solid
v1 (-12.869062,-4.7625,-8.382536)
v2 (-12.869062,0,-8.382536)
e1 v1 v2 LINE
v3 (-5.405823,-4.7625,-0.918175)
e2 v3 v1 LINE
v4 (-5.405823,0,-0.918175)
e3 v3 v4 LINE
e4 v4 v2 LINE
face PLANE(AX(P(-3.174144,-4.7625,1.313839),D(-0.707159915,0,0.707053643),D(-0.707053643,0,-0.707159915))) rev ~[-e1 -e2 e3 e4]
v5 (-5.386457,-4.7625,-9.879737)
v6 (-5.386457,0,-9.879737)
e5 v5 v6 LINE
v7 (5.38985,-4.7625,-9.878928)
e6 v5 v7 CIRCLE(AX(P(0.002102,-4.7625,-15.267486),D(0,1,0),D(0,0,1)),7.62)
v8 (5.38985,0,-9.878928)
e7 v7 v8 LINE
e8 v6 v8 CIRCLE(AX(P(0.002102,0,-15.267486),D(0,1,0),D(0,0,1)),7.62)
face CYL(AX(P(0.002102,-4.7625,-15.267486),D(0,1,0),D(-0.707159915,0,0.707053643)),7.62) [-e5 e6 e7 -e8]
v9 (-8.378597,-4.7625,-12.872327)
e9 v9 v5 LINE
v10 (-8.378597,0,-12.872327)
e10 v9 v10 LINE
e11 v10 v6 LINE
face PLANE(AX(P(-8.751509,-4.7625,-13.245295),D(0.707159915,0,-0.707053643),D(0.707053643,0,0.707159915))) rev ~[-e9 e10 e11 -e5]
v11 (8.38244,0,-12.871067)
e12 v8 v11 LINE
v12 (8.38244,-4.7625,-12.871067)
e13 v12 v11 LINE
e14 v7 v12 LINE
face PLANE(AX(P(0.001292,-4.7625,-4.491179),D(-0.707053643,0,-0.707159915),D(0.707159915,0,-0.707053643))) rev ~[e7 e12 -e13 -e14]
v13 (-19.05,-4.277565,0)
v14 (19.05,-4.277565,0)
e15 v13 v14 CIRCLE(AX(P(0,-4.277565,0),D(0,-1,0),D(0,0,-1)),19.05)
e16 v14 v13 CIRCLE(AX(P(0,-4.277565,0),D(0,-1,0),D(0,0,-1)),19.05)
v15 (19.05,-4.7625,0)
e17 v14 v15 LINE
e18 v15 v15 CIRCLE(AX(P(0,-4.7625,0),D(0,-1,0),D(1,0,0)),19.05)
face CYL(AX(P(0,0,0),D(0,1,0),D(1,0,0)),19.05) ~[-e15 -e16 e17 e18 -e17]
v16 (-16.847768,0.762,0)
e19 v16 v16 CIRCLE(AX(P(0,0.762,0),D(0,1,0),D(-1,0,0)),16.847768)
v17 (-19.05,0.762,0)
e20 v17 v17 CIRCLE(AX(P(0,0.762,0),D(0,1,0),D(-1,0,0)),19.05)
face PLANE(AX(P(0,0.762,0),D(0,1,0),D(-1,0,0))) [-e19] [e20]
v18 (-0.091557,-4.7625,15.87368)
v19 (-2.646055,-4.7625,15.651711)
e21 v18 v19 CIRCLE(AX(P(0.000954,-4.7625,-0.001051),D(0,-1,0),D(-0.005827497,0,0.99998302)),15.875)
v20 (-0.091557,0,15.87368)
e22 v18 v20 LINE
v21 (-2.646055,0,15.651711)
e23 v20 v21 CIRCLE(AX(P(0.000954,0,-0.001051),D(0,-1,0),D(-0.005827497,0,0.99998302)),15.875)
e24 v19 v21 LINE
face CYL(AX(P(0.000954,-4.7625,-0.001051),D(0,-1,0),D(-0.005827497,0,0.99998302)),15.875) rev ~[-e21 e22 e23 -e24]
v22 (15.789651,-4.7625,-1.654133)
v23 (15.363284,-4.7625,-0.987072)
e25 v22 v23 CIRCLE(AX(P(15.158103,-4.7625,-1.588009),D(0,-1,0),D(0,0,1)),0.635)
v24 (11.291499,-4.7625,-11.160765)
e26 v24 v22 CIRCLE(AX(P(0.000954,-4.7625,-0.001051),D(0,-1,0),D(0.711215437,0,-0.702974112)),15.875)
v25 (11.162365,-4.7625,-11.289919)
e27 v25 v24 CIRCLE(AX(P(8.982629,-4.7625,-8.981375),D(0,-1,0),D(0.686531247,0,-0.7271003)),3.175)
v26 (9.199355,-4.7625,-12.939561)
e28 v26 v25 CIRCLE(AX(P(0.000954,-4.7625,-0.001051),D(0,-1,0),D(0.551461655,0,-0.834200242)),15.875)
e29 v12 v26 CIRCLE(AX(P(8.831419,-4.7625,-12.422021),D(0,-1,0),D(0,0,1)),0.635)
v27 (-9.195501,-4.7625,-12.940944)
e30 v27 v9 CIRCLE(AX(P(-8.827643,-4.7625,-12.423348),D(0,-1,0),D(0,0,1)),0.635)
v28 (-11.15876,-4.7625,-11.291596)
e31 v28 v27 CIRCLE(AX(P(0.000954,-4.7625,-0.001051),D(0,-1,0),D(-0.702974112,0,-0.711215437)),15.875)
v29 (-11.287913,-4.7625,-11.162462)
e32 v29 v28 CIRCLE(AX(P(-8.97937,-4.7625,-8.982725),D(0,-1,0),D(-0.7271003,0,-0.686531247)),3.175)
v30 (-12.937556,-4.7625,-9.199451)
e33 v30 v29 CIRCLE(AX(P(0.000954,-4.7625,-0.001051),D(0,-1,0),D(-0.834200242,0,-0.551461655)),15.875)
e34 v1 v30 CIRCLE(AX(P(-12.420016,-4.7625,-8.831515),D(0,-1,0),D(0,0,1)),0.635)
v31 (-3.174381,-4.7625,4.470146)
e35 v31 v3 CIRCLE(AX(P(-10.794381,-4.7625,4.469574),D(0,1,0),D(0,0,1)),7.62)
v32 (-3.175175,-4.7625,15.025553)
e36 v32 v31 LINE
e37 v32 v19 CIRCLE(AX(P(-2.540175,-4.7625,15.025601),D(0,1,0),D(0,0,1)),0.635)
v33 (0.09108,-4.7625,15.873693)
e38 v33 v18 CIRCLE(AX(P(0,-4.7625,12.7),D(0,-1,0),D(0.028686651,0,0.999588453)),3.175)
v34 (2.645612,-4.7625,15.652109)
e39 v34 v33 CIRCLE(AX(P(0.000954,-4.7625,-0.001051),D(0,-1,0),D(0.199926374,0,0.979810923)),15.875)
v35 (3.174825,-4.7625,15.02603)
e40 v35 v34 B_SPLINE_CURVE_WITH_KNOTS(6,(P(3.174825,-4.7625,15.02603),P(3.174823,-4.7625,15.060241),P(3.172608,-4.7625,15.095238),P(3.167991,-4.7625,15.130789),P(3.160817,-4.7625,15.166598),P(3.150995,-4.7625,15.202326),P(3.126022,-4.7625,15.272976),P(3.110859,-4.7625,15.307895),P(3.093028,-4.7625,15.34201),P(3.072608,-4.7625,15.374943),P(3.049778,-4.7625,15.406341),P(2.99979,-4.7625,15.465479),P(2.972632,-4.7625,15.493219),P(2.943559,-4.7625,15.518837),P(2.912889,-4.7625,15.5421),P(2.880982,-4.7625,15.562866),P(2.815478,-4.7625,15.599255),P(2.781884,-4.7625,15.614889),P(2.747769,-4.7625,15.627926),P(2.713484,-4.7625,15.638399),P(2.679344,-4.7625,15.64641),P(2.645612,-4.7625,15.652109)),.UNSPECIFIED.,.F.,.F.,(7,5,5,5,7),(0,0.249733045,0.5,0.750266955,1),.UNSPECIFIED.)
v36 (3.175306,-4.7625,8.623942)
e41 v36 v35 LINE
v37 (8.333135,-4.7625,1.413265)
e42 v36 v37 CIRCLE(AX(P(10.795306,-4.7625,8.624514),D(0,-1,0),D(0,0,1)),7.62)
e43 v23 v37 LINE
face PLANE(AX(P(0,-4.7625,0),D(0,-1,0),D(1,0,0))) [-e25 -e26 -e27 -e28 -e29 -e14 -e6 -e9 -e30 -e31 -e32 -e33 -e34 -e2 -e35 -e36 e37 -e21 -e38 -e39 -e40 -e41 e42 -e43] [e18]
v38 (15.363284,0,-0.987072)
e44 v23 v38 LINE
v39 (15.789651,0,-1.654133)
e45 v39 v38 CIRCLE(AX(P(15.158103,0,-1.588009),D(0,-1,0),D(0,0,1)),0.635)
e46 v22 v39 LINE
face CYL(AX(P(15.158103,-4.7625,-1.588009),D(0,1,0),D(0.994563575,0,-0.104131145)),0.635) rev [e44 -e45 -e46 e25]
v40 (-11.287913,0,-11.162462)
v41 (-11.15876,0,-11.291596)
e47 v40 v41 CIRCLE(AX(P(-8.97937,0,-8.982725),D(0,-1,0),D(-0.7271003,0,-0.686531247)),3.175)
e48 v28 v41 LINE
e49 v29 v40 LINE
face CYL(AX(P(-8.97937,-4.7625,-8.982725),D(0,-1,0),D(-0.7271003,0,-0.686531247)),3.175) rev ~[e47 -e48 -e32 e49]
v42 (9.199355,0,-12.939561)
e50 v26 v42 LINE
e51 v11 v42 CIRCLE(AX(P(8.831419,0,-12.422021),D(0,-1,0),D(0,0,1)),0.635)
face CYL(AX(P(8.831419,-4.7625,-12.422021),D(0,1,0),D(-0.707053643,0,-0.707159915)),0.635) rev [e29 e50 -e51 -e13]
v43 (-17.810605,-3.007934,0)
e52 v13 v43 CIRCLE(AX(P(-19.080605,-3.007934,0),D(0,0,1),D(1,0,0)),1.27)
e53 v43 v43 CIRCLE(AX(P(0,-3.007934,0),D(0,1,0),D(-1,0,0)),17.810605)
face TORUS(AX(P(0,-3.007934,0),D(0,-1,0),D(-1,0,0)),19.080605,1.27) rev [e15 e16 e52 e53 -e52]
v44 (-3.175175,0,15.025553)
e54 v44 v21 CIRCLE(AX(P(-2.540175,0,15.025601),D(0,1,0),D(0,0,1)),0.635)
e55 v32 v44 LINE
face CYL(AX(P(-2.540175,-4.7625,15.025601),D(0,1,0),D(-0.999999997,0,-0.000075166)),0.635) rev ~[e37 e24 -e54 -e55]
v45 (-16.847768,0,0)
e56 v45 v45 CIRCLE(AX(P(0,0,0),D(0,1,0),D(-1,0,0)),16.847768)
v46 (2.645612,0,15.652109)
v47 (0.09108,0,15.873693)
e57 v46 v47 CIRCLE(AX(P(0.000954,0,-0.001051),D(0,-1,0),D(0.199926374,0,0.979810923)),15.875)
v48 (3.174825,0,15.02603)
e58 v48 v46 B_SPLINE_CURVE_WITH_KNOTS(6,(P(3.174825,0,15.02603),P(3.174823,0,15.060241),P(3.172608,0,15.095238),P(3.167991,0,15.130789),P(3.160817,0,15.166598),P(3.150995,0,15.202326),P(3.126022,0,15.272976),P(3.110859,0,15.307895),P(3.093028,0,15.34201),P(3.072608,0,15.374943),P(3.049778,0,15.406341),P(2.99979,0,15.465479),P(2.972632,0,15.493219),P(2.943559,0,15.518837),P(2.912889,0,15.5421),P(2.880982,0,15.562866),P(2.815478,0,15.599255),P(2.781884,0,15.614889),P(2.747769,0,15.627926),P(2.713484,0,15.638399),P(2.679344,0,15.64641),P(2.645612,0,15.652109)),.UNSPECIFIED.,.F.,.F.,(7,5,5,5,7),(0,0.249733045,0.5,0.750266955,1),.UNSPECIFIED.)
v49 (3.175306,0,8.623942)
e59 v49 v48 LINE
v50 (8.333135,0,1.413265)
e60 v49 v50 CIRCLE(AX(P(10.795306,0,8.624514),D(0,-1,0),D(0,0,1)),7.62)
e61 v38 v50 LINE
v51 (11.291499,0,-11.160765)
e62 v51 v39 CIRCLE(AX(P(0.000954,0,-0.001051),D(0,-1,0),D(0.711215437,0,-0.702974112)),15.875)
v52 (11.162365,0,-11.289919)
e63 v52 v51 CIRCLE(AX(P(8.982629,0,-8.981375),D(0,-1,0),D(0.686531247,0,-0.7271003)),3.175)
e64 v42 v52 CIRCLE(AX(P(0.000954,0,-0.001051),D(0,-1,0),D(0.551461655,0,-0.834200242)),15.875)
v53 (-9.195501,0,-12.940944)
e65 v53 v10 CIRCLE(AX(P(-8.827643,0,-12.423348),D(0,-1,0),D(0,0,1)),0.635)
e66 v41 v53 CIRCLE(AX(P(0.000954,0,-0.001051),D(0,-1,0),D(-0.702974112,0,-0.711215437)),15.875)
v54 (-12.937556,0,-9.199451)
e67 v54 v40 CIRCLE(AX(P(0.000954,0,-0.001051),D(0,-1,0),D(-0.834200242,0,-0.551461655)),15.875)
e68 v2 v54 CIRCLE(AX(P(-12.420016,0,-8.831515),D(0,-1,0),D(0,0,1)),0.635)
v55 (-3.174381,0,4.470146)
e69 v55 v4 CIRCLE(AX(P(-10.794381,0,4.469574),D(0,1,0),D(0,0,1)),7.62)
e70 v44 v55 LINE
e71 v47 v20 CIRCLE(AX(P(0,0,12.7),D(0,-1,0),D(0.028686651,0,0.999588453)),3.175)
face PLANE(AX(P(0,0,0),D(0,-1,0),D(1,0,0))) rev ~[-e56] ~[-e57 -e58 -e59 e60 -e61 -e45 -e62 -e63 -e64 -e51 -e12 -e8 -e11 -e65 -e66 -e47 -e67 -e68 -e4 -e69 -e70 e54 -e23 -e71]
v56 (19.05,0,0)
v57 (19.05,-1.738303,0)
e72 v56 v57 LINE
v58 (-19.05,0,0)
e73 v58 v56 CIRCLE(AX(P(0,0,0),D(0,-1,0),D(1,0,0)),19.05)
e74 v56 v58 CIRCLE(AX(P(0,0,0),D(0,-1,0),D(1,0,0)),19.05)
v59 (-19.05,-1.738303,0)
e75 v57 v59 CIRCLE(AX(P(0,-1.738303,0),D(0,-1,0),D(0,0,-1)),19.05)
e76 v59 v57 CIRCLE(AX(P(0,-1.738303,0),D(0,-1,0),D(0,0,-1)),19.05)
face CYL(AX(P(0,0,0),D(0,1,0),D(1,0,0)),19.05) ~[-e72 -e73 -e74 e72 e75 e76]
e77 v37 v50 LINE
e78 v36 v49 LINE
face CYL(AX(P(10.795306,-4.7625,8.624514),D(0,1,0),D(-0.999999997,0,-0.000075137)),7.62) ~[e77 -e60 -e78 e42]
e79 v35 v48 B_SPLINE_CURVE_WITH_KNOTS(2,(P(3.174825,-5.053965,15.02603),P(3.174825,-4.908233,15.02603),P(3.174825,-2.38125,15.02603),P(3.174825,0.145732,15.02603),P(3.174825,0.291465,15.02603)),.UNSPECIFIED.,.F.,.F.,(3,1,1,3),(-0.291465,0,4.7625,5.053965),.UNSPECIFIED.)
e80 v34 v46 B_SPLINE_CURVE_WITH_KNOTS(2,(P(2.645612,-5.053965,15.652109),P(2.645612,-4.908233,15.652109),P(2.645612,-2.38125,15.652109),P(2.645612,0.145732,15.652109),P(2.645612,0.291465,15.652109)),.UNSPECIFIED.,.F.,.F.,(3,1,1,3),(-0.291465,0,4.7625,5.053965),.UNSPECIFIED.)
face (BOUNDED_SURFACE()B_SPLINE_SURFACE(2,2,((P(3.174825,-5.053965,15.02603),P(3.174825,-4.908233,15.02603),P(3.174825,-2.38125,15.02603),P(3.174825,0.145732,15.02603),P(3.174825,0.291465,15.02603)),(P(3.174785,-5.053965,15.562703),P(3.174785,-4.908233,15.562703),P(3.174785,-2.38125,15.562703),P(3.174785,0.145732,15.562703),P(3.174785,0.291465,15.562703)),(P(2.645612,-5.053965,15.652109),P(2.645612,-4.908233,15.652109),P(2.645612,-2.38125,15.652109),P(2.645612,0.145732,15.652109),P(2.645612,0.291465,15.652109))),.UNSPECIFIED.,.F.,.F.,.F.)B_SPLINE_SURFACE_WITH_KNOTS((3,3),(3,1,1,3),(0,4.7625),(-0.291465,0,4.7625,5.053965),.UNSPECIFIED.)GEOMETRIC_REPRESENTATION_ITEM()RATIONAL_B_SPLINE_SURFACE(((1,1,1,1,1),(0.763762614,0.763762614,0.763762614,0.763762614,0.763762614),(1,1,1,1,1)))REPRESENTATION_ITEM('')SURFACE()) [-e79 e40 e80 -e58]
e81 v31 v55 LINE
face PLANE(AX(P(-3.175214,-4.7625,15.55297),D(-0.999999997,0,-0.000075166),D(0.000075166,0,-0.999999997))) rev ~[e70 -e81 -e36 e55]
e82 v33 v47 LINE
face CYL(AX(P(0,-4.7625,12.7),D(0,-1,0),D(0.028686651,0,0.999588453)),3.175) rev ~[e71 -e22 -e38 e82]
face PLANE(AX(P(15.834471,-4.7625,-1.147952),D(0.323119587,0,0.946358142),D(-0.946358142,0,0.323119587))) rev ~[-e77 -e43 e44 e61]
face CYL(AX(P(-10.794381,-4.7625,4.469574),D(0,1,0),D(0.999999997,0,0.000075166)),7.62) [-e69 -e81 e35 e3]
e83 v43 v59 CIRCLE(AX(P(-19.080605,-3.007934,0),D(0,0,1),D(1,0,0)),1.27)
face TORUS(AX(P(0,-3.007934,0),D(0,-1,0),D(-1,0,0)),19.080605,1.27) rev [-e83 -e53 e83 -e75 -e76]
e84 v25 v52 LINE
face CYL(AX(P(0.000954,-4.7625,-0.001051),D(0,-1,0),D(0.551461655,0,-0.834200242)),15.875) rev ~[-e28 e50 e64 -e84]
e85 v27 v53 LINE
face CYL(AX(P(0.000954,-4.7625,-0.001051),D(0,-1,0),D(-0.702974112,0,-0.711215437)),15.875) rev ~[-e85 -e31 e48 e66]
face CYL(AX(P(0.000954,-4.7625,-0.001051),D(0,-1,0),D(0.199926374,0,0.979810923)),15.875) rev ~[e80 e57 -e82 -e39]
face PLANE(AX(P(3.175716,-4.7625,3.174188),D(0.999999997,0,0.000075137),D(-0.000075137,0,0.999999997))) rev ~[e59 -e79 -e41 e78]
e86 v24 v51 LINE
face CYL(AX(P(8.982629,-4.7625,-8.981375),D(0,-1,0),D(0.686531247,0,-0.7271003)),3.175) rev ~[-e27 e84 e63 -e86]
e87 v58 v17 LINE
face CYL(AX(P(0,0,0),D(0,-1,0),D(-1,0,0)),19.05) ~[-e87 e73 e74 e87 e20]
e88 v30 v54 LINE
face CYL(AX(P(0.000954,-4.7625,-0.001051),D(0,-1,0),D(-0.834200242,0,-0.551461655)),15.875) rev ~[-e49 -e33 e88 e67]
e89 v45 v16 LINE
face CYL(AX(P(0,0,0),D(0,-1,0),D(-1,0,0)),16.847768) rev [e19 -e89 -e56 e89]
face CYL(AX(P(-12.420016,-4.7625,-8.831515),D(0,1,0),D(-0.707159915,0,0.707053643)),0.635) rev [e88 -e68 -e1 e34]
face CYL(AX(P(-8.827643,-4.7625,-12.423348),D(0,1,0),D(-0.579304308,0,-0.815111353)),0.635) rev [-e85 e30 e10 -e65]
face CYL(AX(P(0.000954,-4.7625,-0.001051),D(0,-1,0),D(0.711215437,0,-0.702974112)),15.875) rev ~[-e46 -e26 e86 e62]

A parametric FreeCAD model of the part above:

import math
import FreeCAD as App
import Part
import Sketcher

V = App.Vector
Q = App.Units.Quantity


def edges_at(feature, points):
    """Names of the edges that pass closest to the given points."""
    edges = feature.Shape.Edges
    near = lambda p: min(range(len(edges)), key=lambda i: edges[i].distToShape(Part.Vertex(*p))[0])
    return sorted({f"Edge{near(p) + 1}" for p in points})

doc = App.newDocument("Part")
body = doc.addObject("PartDesign::Body", "Body")

sketch1 = doc.addObject("Sketcher::SketchObject", "Sketch")
body.addObject(sketch1)
sketch1.AttachmentSupport = (doc.XZ_Plane, [""])
sketch1.MapMode = "FlatFace"
sketch1.addGeometry(Part.Circle(V(0, 0, 0), V(0, 0, 1), 19), False)
sketch1.addConstraint([
    Sketcher.Constraint("Coincident", 0, 3, -1, 1),
    Sketcher.Constraint("Diameter", 0, Q("1.5 in")),
])
pad1 = doc.addObject("PartDesign::Pad", "Pad")
body.addObject(pad1)
pad1.Profile = sketch1
pad1.Length = Q("0.1875 in")

sketch2 = doc.addObject("Sketcher::SketchObject", "Sketch001")
body.addObject(sketch2)
sketch2.AttachmentSupport = (doc.XZ_Plane, [""])
sketch2.MapMode = "FlatFace"
sketch2.AttachmentOffset = App.Placement(V(0, 0, 0.1875 * 25.4), App.Rotation())
sketch2.addGeometry([
    Part.LineSegment(V(-3.18, 15.55, 0), V(-3.17, 1.31, 0)),
    Part.LineSegment(V(-3.17, 1.31, 0), V(-13.24, -8.76, 0)),
    Part.ArcOfCircle(Part.Circle(V(0, 0, 0), V(0, 0, 1), 15.88), math.radians(-146.53), math.radians(-135.33)),
    Part.ArcOfCircle(Part.Circle(V(-8.98, -8.98, 0), V(0, 0, 1), 3.17), math.radians(-136.64), math.radians(-133.35)),
    Part.ArcOfCircle(Part.Circle(V(0, 0, 0), V(0, 0, 1), 15.87), math.radians(-134.67), math.radians(-123.46)),
    Part.LineSegment(V(-8.75, -13.25, 0), V(0, -4.49, 0)),
    Part.LineSegment(V(0, -4.49, 0), V(8.76, -13.24, 0)),
    Part.ArcOfCircle(Part.Circle(V(0, 0, 0), V(0, 0, 1), 15.88), math.radians(-56.53), math.radians(-45.33)),
    Part.ArcOfCircle(Part.Circle(V(8.98, -8.98, 0), V(0, 0, 1), 3.17), math.radians(-46.64), math.radians(-43.35)),
    Part.ArcOfCircle(Part.Circle(V(0, 0, 0), V(0, 0, 1), 15.88), math.radians(-45), math.radians(-4)),
    Part.LineSegment(V(15.83, -1.15, 0), V(3.18, 3.17, 0)),
    Part.LineSegment(V(3.18, 3.17, 0), V(3.17, 15.42, 0)),
    Part.LineSegment(V(3.17, 15.42, 0), V(3.17, 15.55, 0)),
    Part.ArcOfCircle(Part.Circle(V(0, 0, 0), V(0, 0, 1), 15.88), math.radians(78.47), math.radians(89.67)),
    Part.ArcOfCircle(Part.Circle(V(0, 12.7, 0), V(0, 0, 1), 3.18), math.radians(88.36), math.radians(91.65)),
    Part.ArcOfCircle(Part.Circle(V(0, 0, 0), V(0, 0, 1), 15.87), math.radians(90.33), math.radians(101.54)),
], False)
sketch2.addConstraint([
    Sketcher.Constraint("Coincident", 0, 2, 1, 1),
    Sketcher.Constraint("Coincident", 1, 2, 2, 1),
    Sketcher.Constraint("Coincident", 2, 2, 3, 1),
    Sketcher.Constraint("Coincident", 3, 2, 4, 1),
    Sketcher.Constraint("Coincident", 4, 2, 5, 1),
    Sketcher.Constraint("Coincident", 5, 2, 6, 1),
    Sketcher.Constraint("Coincident", 6, 2, 7, 1),
    Sketcher.Constraint("Coincident", 7, 2, 8, 1),
    Sketcher.Constraint("Coincident", 8, 2, 9, 1),
    Sketcher.Constraint("Coincident", 9, 2, 10, 1),
    Sketcher.Constraint("Coincident", 10, 2, 11, 1),
    Sketcher.Constraint("Coincident", 11, 2, 12, 1),
    Sketcher.Constraint("Coincident", 12, 2, 13, 1),
    Sketcher.Constraint("Coincident", 13, 2, 14, 1),
    Sketcher.Constraint("Coincident", 14, 2, 15, 1),
    Sketcher.Constraint("Coincident", 15, 2, 0, 1),
    Sketcher.Constraint("Coincident", 4, 3, 2, 3),
    Sketcher.Constraint("Coincident", 7, 3, 2, 3),
    Sketcher.Constraint("Coincident", 9, 3, 2, 3),
    Sketcher.Constraint("Coincident", 13, 3, 2, 3),
    Sketcher.Constraint("Coincident", 15, 3, 2, 3),
    Sketcher.Constraint("Equal", 2, 4),
    Sketcher.Constraint("Equal", 4, 7),
    Sketcher.Constraint("Equal", 3, 8),
    Sketcher.Constraint("Equal", 7, 9),
    Sketcher.Constraint("Equal", 9, 13),
    Sketcher.Constraint("Equal", 8, 14),
    Sketcher.Constraint("Equal", 13, 15),
    Sketcher.Constraint("PointOnObject", 14, 3, -2),
    Sketcher.Constraint("Parallel", 1, 5),
    Sketcher.Constraint("Perpendicular", 5, 6),
    Sketcher.Constraint("Parallel", 0, 11),
    Sketcher.Constraint("Parallel", 11, 12),
    Sketcher.Constraint("Equal", 0, 1),
    Sketcher.Constraint("Equal", 5, 6),
    Sketcher.Constraint("Radius", 2, Q("0.625 in")),
    Sketcher.Constraint("Radius", 3, Q("0.125 in")),
    Sketcher.Constraint("DistanceY", -1, 1, 14, 3, Q("0.5 in")),
    Sketcher.Constraint("DistanceX", 15, 2, 12, 2, Q("0.25 in")),
    Sketcher.Constraint("DistanceY", 8, 2, -1, 1, Q("0.4394002 in")),
    Sketcher.Constraint("DistanceX", -1, 1, 8, 2, Q("11.291499 mm")),
    Sketcher.Constraint("DistanceX", 3, 3, 8, 3, Q("17.961998 mm")),
    Sketcher.Constraint("DistanceX", 0, 2, 15, 3, Q("3.175099 mm")),
    Sketcher.Constraint("DistanceY", 2, 2, 0, 2, Q("12.4763 mm")),
    Sketcher.Constraint("DistanceY", 4, 2, 3, 2, Q("1.953699 mm")),
    Sketcher.Constraint("DistanceY", 6, 2, 5, 2, Q("8.752801 mm")),
    Sketcher.Constraint("DistanceY", 9, 2, 2, 3, Q("1.146901 mm")),
    Sketcher.Constraint("DistanceY", 15, 3, 12, 2, Q("15.554498 mm")),
    Sketcher.Constraint("Distance", 0, Q("14.239132 mm")),
    Sketcher.Constraint("DistanceY", 2, 3, -1, 1, Q("0.001051 mm")),
    Sketcher.Constraint("DistanceY", 2, 3, 10, 2, Q("3.175239 mm")),
    Sketcher.Constraint("DistanceY", 11, 2, 13, 2, Q("0.45806 mm")),
])
pocket1 = doc.addObject("PartDesign::Pocket", "Pocket")
body.addObject(pocket1)
pocket1.Profile = sketch2
pocket1.Length = Q("1 in")
doc.recompute()

fillet = doc.addObject("PartDesign::Fillet", "Fillet")
body.addObject(fillet)
fillet.Base = (pocket1, edges_at(pocket1, [
    (-13.242, -2.381, -8.756),
    (-8.752, -2.381, -13.245),
    (8.755, -2.381, -13.244),
    (15.834, -2.381, -1.148),
    (3.175, -2.381, 15.553),
    (-3.175, -2.381, 15.553),
]))
fillet.Radius = Q("0.025 in")
doc.recompute()

fillet2 = doc.addObject("PartDesign::Fillet", "Fillet001")
body.addObject(fillet2)
fillet2.Base = (fillet, edges_at(fillet, [(-3.174, -2.381, 1.314), (0.001, -2.381, -4.491), (3.176, -2.381, 3.174)]))
fillet2.Radius = Q("0.3 in")

sketch3 = doc.addObject("Sketcher::SketchObject", "Sketch002")
body.addObject(sketch3)
sketch3.AttachmentSupport = (doc.XZ_Plane, [""])
sketch3.MapMode = "FlatFace"
sketch3.addGeometry([
    Part.Circle(V(0, 0, 0), V(0, 0, 1), 19),
    Part.Circle(V(0, 0, 0), V(0, 0, 1), 17),
], False)
sketch3.addConstraint([
    Sketcher.Constraint("Coincident", 0, 3, -1, 1),
    Sketcher.Constraint("Coincident", 1, 3, -1, 1),
    Sketcher.Constraint("Diameter", 0, Q("1.5 in")),
    Sketcher.Constraint("Diameter", 1, Q("33.695537 mm")),
])
pad2 = doc.addObject("PartDesign::Pad", "Pad001")
body.addObject(pad2)
pad2.Profile = sketch3
pad2.Length = Q("0.03 in")
pad2.Reversed = True

sketch4 = doc.addObject("Sketcher::SketchObject", "Sketch003")
body.addObject(sketch4)
sketch4.AttachmentSupport = (doc.XY_Plane, [""])
sketch4.MapMode = "FlatFace"
sketch4.addGeometry(Part.Circle(V(-19.1, -3, 0), V(0, 0, 1), 1.3), False)
sketch4.addConstraint([
    Sketcher.Constraint("Diameter", 0, Q("0.1 in")),
    Sketcher.Constraint("DistanceX", 0, 3, -1, 1, Q("19.080605 mm")),
    Sketcher.Constraint("DistanceY", 0, 3, -1, 1, Q("3.007934 mm")),
])
groove = doc.addObject("PartDesign::Groove", "Groove")
body.addObject(groove)
groove.Profile = sketch4
groove.ReferenceAxis = (sketch4, ["V_Axis"])
groove.Angle = 360

doc.recompute()
